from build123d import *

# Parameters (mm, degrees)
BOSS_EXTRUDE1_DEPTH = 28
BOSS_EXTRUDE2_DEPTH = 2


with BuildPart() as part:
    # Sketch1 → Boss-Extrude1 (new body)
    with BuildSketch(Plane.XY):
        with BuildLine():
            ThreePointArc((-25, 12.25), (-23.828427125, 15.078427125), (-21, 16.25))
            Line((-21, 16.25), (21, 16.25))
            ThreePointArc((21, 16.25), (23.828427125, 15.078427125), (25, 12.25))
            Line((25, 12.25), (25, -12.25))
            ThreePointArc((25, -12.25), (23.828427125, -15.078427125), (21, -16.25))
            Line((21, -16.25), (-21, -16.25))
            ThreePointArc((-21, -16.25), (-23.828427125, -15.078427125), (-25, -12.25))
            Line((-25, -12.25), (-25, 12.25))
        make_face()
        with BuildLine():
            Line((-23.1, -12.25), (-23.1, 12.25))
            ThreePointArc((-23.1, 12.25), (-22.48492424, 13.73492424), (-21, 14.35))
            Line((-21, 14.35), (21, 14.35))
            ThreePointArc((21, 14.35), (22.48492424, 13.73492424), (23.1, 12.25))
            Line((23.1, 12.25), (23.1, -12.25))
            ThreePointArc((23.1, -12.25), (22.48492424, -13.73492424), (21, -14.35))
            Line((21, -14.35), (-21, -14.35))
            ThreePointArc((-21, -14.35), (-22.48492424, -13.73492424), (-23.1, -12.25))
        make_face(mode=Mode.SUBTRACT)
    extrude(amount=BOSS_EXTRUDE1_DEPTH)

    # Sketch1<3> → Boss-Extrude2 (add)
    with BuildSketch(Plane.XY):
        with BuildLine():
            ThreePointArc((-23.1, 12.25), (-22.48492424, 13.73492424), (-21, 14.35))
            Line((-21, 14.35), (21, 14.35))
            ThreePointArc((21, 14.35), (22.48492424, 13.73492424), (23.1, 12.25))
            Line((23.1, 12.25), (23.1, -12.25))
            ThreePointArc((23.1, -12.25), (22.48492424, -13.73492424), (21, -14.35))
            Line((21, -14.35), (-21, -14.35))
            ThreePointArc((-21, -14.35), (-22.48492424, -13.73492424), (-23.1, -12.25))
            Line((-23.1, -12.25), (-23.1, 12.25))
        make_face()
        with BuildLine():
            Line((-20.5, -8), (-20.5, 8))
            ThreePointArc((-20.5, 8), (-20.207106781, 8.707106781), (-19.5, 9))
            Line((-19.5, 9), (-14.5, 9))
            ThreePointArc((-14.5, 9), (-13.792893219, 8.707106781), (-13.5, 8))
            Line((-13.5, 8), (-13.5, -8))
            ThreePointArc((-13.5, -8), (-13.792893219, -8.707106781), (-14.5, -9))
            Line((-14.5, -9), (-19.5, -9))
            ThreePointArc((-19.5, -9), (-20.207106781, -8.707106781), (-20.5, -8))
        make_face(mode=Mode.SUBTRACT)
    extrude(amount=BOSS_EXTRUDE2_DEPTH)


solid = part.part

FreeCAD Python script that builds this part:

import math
import FreeCAD as App
import Part
import Sketcher

doc = App.newDocument("Part")
body = doc.addObject("PartDesign::Body", "Body")

sketch1 = body.newObject("Sketcher::SketchObject", "Sketch")
sketch1.AttachmentSupport = (doc.getObject("XY_Plane"), [""])
sketch1.MapMode = "FlatFace"
sketch1.addGeometry(Part.ArcOfCircle(Part.Circle(App.Vector(-21, 12.3, 0), App.Vector(0, 0, 1), 4), math.radians(90), math.radians(180)), False)
sketch1.addGeometry(Part.LineSegment(App.Vector(-25, 12.2, 0), App.Vector(-25, -12.2, 0)), False)
sketch1.addGeometry(Part.ArcOfCircle(Part.Circle(App.Vector(-21, -12.3, 0), App.Vector(0, 0, 1), 4), math.radians(180), math.radians(270)), False)
sketch1.addGeometry(Part.LineSegment(App.Vector(-21, -16.2, 0), App.Vector(21, -16.2, 0)), False)
sketch1.addGeometry(Part.ArcOfCircle(Part.Circle(App.Vector(21, -12.3, 0), App.Vector(0, 0, 1), 4), math.radians(-90), math.radians(0)), False)
sketch1.addGeometry(Part.LineSegment(App.Vector(25, -12.2, 0), App.Vector(25, 12.2, 0)), False)
sketch1.addGeometry(Part.ArcOfCircle(Part.Circle(App.Vector(21, 12.3, 0), App.Vector(0, 0, 1), 4), math.radians(0), math.radians(90)), False)
sketch1.addGeometry(Part.LineSegment(App.Vector(21, 16.2, 0), App.Vector(-21, 16.2, 0)), False)
sketch1.addGeometry(Part.LineSegment(App.Vector(-23.1, -12.2, 0), App.Vector(-23.1, 12.2, 0)), False)
sketch1.addGeometry(Part.ArcOfCircle(Part.Circle(App.Vector(-21, 12.2, 0), App.Vector(0, 0, 1), 2.1), math.radians(90), math.radians(180)), False)
sketch1.addGeometry(Part.LineSegment(App.Vector(-21, 14.3, 0), App.Vector(21, 14.3, 0)), False)
sketch1.addGeometry(Part.ArcOfCircle(Part.Circle(App.Vector(21, 12.2, 0), App.Vector(0, 0, 1), 2.1), math.radians(0), math.radians(90)), False)
sketch1.addGeometry(Part.LineSegment(App.Vector(23.1, 12.2, 0), App.Vector(23.1, -12.2, 0)), False)
sketch1.addGeometry(Part.ArcOfCircle(Part.Circle(App.Vector(21, -12.2, 0), App.Vector(0, 0, 1), 2.1), math.radians(-90), math.radians(0)), False)
sketch1.addGeometry(Part.LineSegment(App.Vector(21, -14.3, 0), App.Vector(-21, -14.3, 0)), False)
sketch1.addGeometry(Part.ArcOfCircle(Part.Circle(App.Vector(-21, -12.2, 0), App.Vector(0, 0, 1), 2.1), math.radians(-180), math.radians(-90)), False)
sketch1.addConstraint(Sketcher.Constraint("Tangent", 0, 2, 1, 1))
sketch1.addConstraint(Sketcher.Constraint("Tangent", 1, 2, 2, 1))
sketch1.addConstraint(Sketcher.Constraint("Tangent", 2, 2, 3, 1))
sketch1.addConstraint(Sketcher.Constraint("Tangent", 3, 2, 4, 1))
sketch1.addConstraint(Sketcher.Constraint("Tangent", 4, 2, 5, 1))
sketch1.addConstraint(Sketcher.Constraint("Tangent", 5, 2, 6, 1))
sketch1.addConstraint(Sketcher.Constraint("Tangent", 6, 2, 7, 1))
sketch1.addConstraint(Sketcher.Constraint("Tangent", 7, 2, 0, 1))
sketch1.addConstraint(Sketcher.Constraint("Tangent", 8, 2, 9, 2))
sketch1.addConstraint(Sketcher.Constraint("Tangent", 9, 1, 10, 1))
sketch1.addConstraint(Sketcher.Constraint("Tangent", 10, 2, 11, 2))
sketch1.addConstraint(Sketcher.Constraint("Tangent", 11, 1, 12, 1))
sketch1.addConstraint(Sketcher.Constraint("Tangent", 12, 2, 13, 2))
sketch1.addConstraint(Sketcher.Constraint("Tangent", 13, 1, 14, 1))
sketch1.addConstraint(Sketcher.Constraint("Tangent", 14, 2, 15, 2))
sketch1.addConstraint(Sketcher.Constraint("Tangent", 15, 1, 8, 1))
sketch1.addConstraint(Sketcher.Constraint("Vertical", 1))
sketch1.addConstraint(Sketcher.Constraint("Horizontal", 3))
sketch1.addConstraint(Sketcher.Constraint("Vertical", 5))
sketch1.addConstraint(Sketcher.Constraint("Horizontal", 7))
sketch1.addConstraint(Sketcher.Constraint("Vertical", 8))
sketch1.addConstraint(Sketcher.Constraint("Horizontal", 10))
sketch1.addConstraint(Sketcher.Constraint("Vertical", 12))
sketch1.addConstraint(Sketcher.Constraint("Horizontal", 14))
sketch1.addConstraint(Sketcher.Constraint("Coincident", 9, 3, 0, 3))
sketch1.addConstraint(Sketcher.Constraint("Coincident", 11, 3, 6, 3))
sketch1.addConstraint(Sketcher.Constraint("Coincident", 13, 3, 4, 3))
sketch1.addConstraint(Sketcher.Constraint("Equal", 0, 2))
sketch1.addConstraint(Sketcher.Constraint("Equal", 2, 4))
sketch1.addConstraint(Sketcher.Constraint("Equal", 4, 6))
sketch1.addConstraint(Sketcher.Constraint("Equal", 13, 15))
sketch1.addConstraint(Sketcher.Constraint("Symmetric", 0, 3, 4, 3, -1, 1))
sketch1.addConstraint(Sketcher.Constraint("Radius", 0, 4.0))
sketch1.addConstraint(Sketcher.Constraint("Radius", 9, 2.1))
sketch1.addConstraint(Sketcher.Constraint("DistanceX", 3, 1, 3, 2, 42.0))
sketch1.addConstraint(Sketcher.Constraint("DistanceY", 1, 2, 1, 1, 24.5))
pad1 = body.newObject("PartDesign::Pad", "Pad")
pad1.Profile = sketch1
pad1.Length = 28

sketch2 = body.newObject("Sketcher::SketchObject", "Sketch001")
sketch2.AttachmentSupport = (doc.getObject("XY_Plane"), [""])
sketch2.MapMode = "FlatFace"
sketch2.addGeometry(Part.ArcOfCircle(Part.Circle(App.Vector(-21, 12.2, 0), App.Vector(0, 0, 1), 2.1), math.radians(90), math.radians(180)), False)
sketch2.addGeometry(Part.LineSegment(App.Vector(-23.1, 12.2, 0), App.Vector(-23.1, -12.2, 0)), False)
sketch2.addGeometry(Part.ArcOfCircle(Part.Circle(App.Vector(-21, -12.2, 0), App.Vector(0, 0, 1), 2.1), math.radians(-180), math.radians(-90)), False)
sketch2.addGeometry(Part.LineSegment(App.Vector(-21, -14.3, 0), App.Vector(21, -14.3, 0)), False)
sketch2.addGeometry(Part.ArcOfCircle(Part.Circle(App.Vector(21, -12.2, 0), App.Vector(0, 0, 1), 2.1), math.radians(-90), math.radians(0)), False)
sketch2.addGeometry(Part.LineSegment(App.Vector(23.1, -12.2, 0), App.Vector(23.1, 12.2, 0)), False)
sketch2.addGeometry(Part.ArcOfCircle(Part.Circle(App.Vector(21, 12.2, 0), App.Vector(0, 0, 1), 2.1), math.radians(0), math.radians(90)), False)
sketch2.addGeometry(Part.LineSegment(App.Vector(21, 14.3, 0), App.Vector(-21, 14.3, 0)), False)
sketch2.addGeometry(Part.LineSegment(App.Vector(-20.5, -8, 0), App.Vector(-20.5, 8, 0)), False)
sketch2.addGeometry(Part.ArcOfCircle(Part.Circle(App.Vector(-19.5, 8, 0), App.Vector(0, 0, 1), 1), math.radians(90), math.radians(180)), False)
sketch2.addGeometry(Part.LineSegment(App.Vector(-19.5, 9, 0), App.Vector(-14.5, 9, 0)), False)
sketch2.addGeometry(Part.ArcOfCircle(Part.Circle(App.Vector(-14.5, 8, 0), App.Vector(0, 0, 1), 1), math.radians(0), math.radians(90)), False)
sketch2.addGeometry(Part.LineSegment(App.Vector(-13.5, 8, 0), App.Vector(-13.5, -8, 0)), False)
sketch2.addGeometry(Part.ArcOfCircle(Part.Circle(App.Vector(-14.5, -8, 0), App.Vector(0, 0, 1), 1), math.radians(-90), math.radians(0)), False)
sketch2.addGeometry(Part.LineSegment(App.Vector(-14.5, -9, 0), App.Vector(-19.5, -9, 0)), False)
sketch2.addGeometry(Part.ArcOfCircle(Part.Circle(App.Vector(-19.5, -8, 0), App.Vector(0, 0, 1), 1), math.radians(-180), math.radians(-90)), False)
sketch2.addConstraint(Sketcher.Constraint("Tangent", 0, 2, 1, 1))
sketch2.addConstraint(Sketcher.Constraint("Tangent", 1, 2, 2, 1))
sketch2.addConstraint(Sketcher.Constraint("Tangent", 2, 2, 3, 1))
sketch2.addConstraint(Sketcher.Constraint("Tangent", 3, 2, 4, 1))
sketch2.addConstraint(Sketcher.Constraint("Tangent", 4, 2, 5, 1))
sketch2.addConstraint(Sketcher.Constraint("Tangent", 5, 2, 6, 1))
sketch2.addConstraint(Sketcher.Constraint("Tangent", 6, 2, 7, 1))
sketch2.addConstraint(Sketcher.Constraint("Tangent", 7, 2, 0, 1))
sketch2.addConstraint(Sketcher.Constraint("Tangent", 8, 2, 9, 2))
sketch2.addConstraint(Sketcher.Constraint("Tangent", 9, 1, 10, 1))
sketch2.addConstraint(Sketcher.Constraint("Tangent", 10, 2, 11, 2))
sketch2.addConstraint(Sketcher.Constraint("Tangent", 11, 1, 12, 1))
sketch2.addConstraint(Sketcher.Constraint("Tangent", 12, 2, 13, 2))
sketch2.addConstraint(Sketcher.Constraint("Tangent", 13, 1, 14, 1))
sketch2.addConstraint(Sketcher.Constraint("Tangent", 14, 2, 15, 2))
sketch2.addConstraint(Sketcher.Constraint("Tangent", 15, 1, 8, 1))
sketch2.addConstraint(Sketcher.Constraint("Vertical", 1))
sketch2.addConstraint(Sketcher.Constraint("Horizontal", 3))
sketch2.addConstraint(Sketcher.Constraint("Vertical", 5))
sketch2.addConstraint(Sketcher.Constraint("Horizontal", 7))
sketch2.addConstraint(Sketcher.Constraint("Vertical", 8))
sketch2.addConstraint(Sketcher.Constraint("Horizontal", 10))
sketch2.addConstraint(Sketcher.Constraint("Vertical", 12))
sketch2.addConstraint(Sketcher.Constraint("Horizontal", 14))
sketch2.addConstraint(Sketcher.Constraint("Equal", 0, 2))
sketch2.addConstraint(Sketcher.Constraint("Equal", 2, 4))
sketch2.addConstraint(Sketcher.Constraint("Equal", 4, 6))
sketch2.addConstraint(Sketcher.Constraint("Equal", 9, 11))
sketch2.addConstraint(Sketcher.Constraint("Equal", 11, 13))
sketch2.addConstraint(Sketcher.Constraint("Equal", 13, 15))
sketch2.addConstraint(Sketcher.Constraint("Symmetric", 0, 3, 4, 3, -1, 1))
sketch2.addConstraint(Sketcher.Constraint("Radius", 9, 1.0))
sketch2.addConstraint(Sketcher.Constraint("Radius", 0, 2.1))
sketch2.addConstraint(Sketcher.Constraint("DistanceX", 3, 1, 3, 2, 42.0))
sketch2.addConstraint(Sketcher.Constraint("DistanceX", 10, 1, 10, 2, 5.0))
sketch2.addConstraint(Sketcher.Constraint("DistanceY", 8, 1, 8, 2, 16.0))
sketch2.addConstraint(Sketcher.Constraint("DistanceY", 1, 2, 1, 1, 24.5))
sketch2.addConstraint(Sketcher.Constraint("DistanceY", -1, 1, 9, 3, 8.0))
sketch2.addConstraint(Sketcher.Constraint("DistanceX", 9, 3, -1, 1, 19.5))
pad2 = body.newObject("PartDesign::Pad", "Pad001")
pad2.Profile = sketch2
pad2.Length = 2

doc.recompute()
